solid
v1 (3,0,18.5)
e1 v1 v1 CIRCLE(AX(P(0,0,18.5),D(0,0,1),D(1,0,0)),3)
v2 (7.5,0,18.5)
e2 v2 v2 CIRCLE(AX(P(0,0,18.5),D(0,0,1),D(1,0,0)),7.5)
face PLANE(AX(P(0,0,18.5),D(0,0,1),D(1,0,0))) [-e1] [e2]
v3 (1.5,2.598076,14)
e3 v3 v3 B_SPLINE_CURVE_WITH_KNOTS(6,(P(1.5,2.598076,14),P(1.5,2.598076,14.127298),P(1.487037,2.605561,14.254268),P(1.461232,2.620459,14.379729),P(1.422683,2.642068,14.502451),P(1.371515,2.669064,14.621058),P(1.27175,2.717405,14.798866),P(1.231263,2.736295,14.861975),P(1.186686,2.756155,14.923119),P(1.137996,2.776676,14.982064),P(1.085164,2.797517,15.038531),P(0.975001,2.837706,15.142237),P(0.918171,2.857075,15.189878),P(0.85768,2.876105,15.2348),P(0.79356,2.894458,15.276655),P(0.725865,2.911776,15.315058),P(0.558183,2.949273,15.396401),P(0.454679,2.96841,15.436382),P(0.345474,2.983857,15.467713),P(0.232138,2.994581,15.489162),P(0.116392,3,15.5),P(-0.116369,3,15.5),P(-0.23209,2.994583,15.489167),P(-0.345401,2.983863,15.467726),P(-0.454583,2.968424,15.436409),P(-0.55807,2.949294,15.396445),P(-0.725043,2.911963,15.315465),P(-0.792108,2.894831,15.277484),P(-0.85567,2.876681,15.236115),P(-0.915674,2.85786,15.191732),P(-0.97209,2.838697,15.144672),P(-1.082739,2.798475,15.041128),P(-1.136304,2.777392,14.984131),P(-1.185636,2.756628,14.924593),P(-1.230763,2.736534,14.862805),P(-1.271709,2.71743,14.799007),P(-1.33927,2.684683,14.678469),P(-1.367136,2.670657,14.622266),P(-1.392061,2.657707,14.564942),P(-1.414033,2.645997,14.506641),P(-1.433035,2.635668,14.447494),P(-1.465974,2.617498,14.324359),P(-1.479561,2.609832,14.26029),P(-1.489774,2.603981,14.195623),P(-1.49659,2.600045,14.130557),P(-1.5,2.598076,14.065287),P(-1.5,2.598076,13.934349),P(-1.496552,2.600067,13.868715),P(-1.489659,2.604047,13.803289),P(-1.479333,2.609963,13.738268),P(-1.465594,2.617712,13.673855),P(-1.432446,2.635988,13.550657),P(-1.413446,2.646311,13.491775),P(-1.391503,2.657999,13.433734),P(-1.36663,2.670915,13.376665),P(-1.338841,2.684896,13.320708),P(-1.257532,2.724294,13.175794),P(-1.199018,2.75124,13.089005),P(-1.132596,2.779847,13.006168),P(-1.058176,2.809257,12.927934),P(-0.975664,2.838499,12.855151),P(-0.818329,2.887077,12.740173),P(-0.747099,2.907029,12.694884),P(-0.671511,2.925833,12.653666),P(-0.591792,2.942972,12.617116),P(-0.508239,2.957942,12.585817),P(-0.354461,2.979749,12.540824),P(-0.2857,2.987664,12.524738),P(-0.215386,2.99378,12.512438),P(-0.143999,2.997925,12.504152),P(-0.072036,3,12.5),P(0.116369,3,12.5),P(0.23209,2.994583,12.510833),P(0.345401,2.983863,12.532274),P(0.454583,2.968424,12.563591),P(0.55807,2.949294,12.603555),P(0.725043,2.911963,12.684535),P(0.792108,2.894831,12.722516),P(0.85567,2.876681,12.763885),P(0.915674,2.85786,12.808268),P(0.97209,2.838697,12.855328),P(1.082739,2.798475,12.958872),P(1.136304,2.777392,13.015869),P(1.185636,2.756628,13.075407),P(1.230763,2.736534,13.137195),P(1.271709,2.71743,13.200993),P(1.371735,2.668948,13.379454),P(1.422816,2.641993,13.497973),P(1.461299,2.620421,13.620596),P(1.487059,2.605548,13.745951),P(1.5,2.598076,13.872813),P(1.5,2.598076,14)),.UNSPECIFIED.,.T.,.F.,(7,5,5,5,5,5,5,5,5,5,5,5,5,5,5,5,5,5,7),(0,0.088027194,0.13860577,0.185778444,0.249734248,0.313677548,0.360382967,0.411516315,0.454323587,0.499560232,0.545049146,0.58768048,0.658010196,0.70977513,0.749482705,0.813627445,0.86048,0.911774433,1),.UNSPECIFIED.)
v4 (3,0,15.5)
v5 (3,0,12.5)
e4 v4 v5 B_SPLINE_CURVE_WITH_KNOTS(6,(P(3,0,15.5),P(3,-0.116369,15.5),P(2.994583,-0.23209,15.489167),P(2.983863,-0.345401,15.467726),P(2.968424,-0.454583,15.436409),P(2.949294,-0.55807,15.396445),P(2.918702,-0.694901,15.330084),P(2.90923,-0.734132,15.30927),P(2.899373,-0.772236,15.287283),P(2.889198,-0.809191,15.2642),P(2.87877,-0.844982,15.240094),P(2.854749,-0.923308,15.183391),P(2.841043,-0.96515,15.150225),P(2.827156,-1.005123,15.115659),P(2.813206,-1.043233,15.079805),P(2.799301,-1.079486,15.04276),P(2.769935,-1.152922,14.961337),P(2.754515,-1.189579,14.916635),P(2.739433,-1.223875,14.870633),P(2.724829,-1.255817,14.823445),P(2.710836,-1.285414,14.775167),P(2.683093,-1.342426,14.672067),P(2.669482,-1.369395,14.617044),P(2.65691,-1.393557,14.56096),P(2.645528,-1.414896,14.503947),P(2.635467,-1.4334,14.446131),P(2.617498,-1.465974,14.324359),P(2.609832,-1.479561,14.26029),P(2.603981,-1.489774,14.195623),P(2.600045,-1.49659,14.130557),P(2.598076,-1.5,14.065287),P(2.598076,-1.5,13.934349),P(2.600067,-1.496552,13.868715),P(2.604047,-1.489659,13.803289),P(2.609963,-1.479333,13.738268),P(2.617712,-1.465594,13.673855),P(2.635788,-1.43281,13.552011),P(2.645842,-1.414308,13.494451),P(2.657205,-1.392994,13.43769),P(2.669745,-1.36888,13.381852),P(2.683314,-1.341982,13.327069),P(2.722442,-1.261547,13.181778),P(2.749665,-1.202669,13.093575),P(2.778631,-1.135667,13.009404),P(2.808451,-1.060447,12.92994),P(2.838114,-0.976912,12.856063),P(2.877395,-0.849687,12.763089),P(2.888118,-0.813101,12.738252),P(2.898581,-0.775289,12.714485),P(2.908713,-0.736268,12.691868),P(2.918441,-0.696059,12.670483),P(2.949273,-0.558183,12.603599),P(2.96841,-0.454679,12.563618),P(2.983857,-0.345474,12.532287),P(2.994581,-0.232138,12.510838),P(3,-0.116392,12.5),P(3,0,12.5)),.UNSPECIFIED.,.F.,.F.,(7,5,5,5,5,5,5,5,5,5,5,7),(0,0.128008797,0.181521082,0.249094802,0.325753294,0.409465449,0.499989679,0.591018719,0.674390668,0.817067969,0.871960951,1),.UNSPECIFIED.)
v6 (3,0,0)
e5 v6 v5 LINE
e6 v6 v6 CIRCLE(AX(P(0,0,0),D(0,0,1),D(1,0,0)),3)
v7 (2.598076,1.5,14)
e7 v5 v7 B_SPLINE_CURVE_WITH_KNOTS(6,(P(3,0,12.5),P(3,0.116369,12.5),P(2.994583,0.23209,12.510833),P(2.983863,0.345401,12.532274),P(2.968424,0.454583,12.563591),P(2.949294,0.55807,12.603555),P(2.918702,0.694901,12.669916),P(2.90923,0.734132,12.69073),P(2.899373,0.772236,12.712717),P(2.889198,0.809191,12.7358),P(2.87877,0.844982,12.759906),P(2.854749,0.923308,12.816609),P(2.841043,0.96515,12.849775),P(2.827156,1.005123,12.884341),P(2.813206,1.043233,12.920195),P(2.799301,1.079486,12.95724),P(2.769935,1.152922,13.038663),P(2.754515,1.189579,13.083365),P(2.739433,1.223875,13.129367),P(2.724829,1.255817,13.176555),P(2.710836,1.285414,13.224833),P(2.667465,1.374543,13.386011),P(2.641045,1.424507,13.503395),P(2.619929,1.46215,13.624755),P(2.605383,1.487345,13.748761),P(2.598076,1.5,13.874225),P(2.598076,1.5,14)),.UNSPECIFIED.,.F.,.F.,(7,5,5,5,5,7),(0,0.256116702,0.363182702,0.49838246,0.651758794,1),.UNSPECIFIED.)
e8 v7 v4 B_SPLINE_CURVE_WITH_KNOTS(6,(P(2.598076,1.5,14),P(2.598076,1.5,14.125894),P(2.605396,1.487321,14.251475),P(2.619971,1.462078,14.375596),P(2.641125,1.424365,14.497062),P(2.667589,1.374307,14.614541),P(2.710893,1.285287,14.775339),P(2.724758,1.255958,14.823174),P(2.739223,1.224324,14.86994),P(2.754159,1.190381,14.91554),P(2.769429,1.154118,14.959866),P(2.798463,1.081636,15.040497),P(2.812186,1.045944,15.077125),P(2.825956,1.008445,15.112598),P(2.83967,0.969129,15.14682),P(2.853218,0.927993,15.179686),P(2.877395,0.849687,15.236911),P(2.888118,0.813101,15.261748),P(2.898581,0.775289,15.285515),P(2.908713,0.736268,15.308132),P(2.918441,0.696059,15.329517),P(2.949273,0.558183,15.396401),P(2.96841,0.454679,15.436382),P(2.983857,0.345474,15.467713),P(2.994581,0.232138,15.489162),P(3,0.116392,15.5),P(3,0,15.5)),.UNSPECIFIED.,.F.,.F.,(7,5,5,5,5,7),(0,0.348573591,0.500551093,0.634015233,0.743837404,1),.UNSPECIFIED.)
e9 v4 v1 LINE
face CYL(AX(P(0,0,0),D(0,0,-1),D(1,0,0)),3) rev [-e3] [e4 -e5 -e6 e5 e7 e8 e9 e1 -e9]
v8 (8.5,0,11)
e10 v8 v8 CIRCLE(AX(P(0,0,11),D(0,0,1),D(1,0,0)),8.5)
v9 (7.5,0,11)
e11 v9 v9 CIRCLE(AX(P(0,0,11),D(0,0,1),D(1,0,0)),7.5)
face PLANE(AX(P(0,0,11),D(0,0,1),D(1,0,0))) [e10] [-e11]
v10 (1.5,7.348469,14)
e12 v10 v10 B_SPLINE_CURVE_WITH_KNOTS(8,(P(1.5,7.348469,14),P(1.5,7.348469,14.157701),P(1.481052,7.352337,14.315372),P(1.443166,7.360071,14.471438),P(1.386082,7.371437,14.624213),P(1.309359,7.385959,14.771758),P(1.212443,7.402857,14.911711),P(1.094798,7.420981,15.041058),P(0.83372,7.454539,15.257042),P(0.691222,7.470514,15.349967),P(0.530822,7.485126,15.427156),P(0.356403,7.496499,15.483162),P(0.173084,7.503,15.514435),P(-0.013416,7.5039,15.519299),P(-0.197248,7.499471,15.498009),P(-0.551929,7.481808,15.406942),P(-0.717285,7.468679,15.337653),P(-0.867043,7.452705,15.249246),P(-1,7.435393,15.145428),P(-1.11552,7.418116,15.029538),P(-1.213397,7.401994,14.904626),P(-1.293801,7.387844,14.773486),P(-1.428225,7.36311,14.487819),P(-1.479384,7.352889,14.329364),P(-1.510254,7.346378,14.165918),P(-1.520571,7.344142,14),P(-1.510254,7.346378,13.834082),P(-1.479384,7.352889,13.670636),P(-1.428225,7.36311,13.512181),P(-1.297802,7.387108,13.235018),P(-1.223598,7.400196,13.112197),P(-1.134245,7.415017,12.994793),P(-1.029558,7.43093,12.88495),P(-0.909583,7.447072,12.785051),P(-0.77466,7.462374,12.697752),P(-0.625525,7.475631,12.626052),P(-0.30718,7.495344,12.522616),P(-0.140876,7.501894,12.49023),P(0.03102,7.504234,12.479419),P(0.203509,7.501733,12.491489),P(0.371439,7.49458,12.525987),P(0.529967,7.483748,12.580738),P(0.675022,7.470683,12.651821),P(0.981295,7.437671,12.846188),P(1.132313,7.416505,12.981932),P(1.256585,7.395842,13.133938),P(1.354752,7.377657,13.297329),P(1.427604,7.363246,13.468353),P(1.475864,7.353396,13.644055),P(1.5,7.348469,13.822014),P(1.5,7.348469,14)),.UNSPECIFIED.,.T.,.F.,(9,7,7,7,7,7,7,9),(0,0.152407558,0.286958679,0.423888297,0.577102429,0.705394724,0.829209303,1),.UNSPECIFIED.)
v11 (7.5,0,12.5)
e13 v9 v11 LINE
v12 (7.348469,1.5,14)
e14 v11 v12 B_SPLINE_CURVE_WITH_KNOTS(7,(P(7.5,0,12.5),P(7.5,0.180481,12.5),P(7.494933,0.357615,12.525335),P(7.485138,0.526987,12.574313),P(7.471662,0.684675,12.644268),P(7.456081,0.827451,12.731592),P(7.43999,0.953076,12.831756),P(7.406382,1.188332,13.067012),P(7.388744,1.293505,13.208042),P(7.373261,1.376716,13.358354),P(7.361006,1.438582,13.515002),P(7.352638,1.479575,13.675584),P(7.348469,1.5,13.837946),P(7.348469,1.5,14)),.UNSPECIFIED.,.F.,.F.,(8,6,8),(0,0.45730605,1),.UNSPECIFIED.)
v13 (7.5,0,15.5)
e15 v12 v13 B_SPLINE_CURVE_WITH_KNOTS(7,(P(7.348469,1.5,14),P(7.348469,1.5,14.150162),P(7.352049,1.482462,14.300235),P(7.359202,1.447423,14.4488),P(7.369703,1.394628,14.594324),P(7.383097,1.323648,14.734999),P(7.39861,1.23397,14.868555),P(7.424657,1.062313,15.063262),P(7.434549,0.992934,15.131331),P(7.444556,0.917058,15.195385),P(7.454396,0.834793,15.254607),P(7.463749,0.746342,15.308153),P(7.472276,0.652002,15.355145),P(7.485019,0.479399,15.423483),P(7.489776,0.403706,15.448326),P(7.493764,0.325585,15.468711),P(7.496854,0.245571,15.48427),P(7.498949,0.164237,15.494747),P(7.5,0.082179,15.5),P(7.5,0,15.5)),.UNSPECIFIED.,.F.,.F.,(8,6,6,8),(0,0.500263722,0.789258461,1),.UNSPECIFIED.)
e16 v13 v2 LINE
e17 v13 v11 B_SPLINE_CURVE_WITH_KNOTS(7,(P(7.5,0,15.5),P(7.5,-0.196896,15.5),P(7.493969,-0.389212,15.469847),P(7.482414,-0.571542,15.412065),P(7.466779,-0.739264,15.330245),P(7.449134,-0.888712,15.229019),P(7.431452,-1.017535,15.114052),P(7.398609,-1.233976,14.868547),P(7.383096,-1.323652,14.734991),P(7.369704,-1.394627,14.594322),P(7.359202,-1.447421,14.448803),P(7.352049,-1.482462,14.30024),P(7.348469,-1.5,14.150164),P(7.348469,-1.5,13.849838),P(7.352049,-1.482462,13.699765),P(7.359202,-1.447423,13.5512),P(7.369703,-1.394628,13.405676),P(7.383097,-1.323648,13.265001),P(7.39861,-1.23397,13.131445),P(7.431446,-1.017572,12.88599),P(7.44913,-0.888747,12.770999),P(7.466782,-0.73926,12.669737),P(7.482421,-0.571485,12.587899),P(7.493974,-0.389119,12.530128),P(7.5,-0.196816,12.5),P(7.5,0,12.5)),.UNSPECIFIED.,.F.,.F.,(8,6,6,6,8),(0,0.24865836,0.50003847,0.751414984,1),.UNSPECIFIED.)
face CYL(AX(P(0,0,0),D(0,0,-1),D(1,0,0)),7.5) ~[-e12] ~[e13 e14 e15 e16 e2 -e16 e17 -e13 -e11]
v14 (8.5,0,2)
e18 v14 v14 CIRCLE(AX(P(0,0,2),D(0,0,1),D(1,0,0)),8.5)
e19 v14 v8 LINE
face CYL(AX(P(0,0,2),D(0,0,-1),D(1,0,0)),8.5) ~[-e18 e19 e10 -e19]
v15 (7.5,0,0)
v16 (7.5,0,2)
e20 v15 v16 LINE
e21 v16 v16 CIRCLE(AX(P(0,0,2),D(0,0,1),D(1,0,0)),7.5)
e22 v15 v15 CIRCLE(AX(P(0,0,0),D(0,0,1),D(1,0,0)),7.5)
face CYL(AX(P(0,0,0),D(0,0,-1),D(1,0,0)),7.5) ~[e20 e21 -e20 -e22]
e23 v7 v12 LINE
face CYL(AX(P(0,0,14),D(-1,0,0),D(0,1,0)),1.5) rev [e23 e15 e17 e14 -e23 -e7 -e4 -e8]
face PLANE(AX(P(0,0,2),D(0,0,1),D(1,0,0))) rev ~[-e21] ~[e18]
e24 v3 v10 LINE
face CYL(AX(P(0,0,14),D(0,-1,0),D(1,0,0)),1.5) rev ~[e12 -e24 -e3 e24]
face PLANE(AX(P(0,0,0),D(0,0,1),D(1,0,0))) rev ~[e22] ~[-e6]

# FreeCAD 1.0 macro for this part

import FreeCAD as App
import Part
import Sketcher
from FreeCAD import Vector

doc = App.newDocument("Part")
body = doc.addObject("PartDesign::Body", "Body")

# Sketch on XY plane
sketch1 = body.newObject("Sketcher::SketchObject", "Sketch")
sketch1.AttachmentSupport = (doc.getObject("XY_Plane"), [""])
sketch1.MapMode = "FlatFace"
sketch1.addGeometry([
    Part.Circle(Vector(0, 0, 0), Vector(0, 0, 1), 7.5),
    Part.Circle(Vector(0, 0, 0), Vector(0, 0, 1), 3),
], False)
sketch1.addConstraint([
    Sketcher.Constraint("Coincident", 0, 3, -1, 1),
    Sketcher.Constraint("Coincident", 1, 3, -1, 1),
    Sketcher.Constraint("Diameter", 0, 15.0),
    Sketcher.Constraint("Diameter", 1, 6.0),
])
pad1 = body.newObject("PartDesign::Pad", "Pad")
pad1.Profile = sketch1
pad1.Length = 18.5

# Sketch on XY plane
sketch2 = body.newObject("Sketcher::SketchObject", "Sketch001")
sketch2.AttachmentSupport = (doc.getObject("XY_Plane"), [""])
sketch2.MapMode = "FlatFace"
sketch2.AttachmentOffset = App.Placement(Vector(0, 0, 2), App.Rotation())
sketch2.addGeometry([
    Part.Circle(Vector(0, 0, 0), Vector(0, 0, 1), 8.5),
    Part.Circle(Vector(0, 0, 0), Vector(0, 0, 1), 7.5),
], False)
sketch2.addConstraint([
    Sketcher.Constraint("Coincident", 0, 3, -1, 1),
    Sketcher.Constraint("Coincident", 1, 3, -1, 1),
    Sketcher.Constraint("Diameter", 0, 17.0),
    Sketcher.Constraint("Diameter", 1, 15.0),
])
pad2 = body.newObject("PartDesign::Pad", "Pad001")
pad2.Profile = sketch2
pad2.Length = 9

# Sketch on YZ plane
sketch3 = body.newObject("Sketcher::SketchObject", "Sketch002")
sketch3.AttachmentSupport = (doc.getObject("YZ_Plane"), [""])
sketch3.MapMode = "FlatFace"
sketch3.addGeometry(Part.Circle(Vector(0, 14, 0), Vector(0, 0, 1), 1.5), False)
sketch3.addConstraint([
    Sketcher.Constraint("PointOnObject", 0, 3, -2),
    Sketcher.Constraint("Diameter", 0, 3.0),
    Sketcher.Constraint("DistanceY", -1, 1, 0, 3, 14.0),
])
pocket1 = body.newObject("PartDesign::Pocket", "Pocket")
pocket1.Profile = sketch3
pocket1.Type = "ThroughAll"
pocket1.Reversed = True

# Sketch on XZ plane
sketch4 = body.newObject("Sketcher::SketchObject", "Sketch003")
sketch4.AttachmentSupport = (doc.getObject("XZ_Plane"), [""])
sketch4.MapMode = "FlatFace"
sketch4.addGeometry(Part.Circle(Vector(0, 14, 0), Vector(0, 0, 1), 1.5), False)
sketch4.addConstraint([
    Sketcher.Constraint("PointOnObject", 0, 3, -2),
    Sketcher.Constraint("Diameter", 0, 3.0),
    Sketcher.Constraint("DistanceY", -1, 1, 0, 3, 14.0),
])
pocket2 = body.newObject("PartDesign::Pocket", "Pocket001")
pocket2.Profile = sketch4
pocket2.Type = "ThroughAll"

doc.recompute()
